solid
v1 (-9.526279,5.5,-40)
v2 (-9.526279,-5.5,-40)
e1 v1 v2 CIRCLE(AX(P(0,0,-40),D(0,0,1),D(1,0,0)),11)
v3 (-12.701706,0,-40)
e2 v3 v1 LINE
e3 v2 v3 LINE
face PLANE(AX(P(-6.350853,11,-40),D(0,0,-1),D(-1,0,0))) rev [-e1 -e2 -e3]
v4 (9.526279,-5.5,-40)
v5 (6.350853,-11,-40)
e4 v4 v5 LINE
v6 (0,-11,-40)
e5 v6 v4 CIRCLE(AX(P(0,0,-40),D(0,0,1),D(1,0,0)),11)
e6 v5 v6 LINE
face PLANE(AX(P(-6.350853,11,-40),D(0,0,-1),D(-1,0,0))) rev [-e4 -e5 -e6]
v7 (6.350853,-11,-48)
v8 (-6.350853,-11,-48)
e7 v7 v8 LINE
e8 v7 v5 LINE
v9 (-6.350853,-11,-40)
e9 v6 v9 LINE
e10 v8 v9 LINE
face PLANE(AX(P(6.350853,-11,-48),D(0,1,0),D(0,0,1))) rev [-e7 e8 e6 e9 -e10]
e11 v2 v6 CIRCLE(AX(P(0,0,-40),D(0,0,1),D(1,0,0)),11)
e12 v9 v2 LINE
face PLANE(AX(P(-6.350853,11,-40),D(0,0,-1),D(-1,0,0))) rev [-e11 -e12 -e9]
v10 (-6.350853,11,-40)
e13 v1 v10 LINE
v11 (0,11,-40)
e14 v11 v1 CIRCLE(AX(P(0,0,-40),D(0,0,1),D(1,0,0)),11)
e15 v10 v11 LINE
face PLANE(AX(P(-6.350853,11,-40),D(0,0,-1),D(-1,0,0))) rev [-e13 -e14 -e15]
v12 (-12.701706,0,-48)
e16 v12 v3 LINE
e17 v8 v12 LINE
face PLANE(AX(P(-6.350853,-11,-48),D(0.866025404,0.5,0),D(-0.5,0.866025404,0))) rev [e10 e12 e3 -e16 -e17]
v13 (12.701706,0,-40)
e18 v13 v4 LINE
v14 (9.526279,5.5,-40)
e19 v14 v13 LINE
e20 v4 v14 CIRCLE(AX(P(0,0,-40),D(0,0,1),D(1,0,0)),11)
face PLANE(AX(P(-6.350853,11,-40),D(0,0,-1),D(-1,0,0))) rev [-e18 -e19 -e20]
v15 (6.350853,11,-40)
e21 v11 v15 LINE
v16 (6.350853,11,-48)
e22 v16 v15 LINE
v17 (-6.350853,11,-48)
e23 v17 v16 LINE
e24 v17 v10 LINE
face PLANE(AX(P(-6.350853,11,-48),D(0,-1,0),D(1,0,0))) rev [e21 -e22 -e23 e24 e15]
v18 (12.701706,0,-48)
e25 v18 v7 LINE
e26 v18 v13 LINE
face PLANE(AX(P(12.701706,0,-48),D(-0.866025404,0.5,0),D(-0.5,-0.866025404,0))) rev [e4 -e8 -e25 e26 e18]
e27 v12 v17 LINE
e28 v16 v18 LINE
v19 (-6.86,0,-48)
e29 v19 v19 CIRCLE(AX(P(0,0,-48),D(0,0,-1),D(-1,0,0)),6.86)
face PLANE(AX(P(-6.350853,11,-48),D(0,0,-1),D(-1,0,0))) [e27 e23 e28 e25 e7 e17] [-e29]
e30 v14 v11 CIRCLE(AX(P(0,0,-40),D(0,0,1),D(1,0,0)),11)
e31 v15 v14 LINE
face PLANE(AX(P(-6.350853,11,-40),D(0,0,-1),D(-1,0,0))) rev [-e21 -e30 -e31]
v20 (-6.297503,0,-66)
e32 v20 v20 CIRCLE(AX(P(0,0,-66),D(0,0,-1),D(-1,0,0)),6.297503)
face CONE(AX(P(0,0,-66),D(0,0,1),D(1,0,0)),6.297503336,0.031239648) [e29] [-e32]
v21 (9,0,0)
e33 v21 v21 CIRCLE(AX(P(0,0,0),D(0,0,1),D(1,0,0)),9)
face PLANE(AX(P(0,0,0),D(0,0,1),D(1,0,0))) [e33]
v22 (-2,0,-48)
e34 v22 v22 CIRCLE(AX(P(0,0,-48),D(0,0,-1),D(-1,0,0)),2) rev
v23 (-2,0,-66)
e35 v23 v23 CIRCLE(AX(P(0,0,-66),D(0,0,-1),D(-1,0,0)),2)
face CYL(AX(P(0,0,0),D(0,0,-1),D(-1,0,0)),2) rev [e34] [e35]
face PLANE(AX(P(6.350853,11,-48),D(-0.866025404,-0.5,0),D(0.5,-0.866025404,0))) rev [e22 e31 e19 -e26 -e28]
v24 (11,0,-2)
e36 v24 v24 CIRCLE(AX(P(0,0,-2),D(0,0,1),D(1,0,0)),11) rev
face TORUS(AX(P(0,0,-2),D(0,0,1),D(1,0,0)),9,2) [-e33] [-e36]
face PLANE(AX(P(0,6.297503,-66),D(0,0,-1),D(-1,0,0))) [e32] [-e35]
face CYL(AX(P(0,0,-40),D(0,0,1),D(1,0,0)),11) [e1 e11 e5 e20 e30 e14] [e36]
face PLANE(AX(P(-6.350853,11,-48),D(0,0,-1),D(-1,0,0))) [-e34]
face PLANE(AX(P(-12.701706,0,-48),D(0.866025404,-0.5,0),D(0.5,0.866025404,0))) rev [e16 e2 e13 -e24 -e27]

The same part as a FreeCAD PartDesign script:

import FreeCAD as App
import Part
import Sketcher

V = App.Vector
Q = App.Units.Quantity


def edges_at(feature, points):
    """Names of the edges that pass closest to the given points."""
    edges = feature.Shape.Edges
    near = lambda p: min(range(len(edges)), key=lambda i: edges[i].distToShape(Part.Vertex(*p))[0])
    return sorted({f"Edge{near(p) + 1}" for p in points})


def add_polygon(sketch, points):
    """Adds a closed chain of lines whose ends are joined by coincident constraints."""
    first, n = sketch.GeometryCount, len(points)
    for a, b in zip(points, points[1:] + points[:1]):
        sketch.addGeometry(Part.LineSegment(App.Vector(*a, 0), App.Vector(*b, 0)), False)
    for i in range(n):
        sketch.addConstraint(Sketcher.Constraint("Coincident", first + i, 2, first + (i + 1) % n, 1))

doc = App.newDocument("Part")
body = doc.addObject("PartDesign::Body", "Body")

sketch1 = body.newObject("Sketcher::SketchObject", "Sketch")
sketch1.AttachmentSupport = (doc.getObject("XY_Plane"), [""])
sketch1.MapMode = "FlatFace"
sketch1.addGeometry(Part.Circle(V(0, 0, 0), V(0, 0, 1), 11), False)
sketch1.addConstraint([
    Sketcher.Constraint("Coincident", 0, 3, -1, 1),
    Sketcher.Constraint("Diameter", 0, Q("22 mm")),
])
pad1 = body.newObject("PartDesign::Pad", "Pad")
pad1.Profile = sketch1
pad1.Length = 40
pad1.Reversed = True

sketch2 = body.newObject("Sketcher::SketchObject", "Sketch001")
sketch2.AttachmentSupport = (doc.getObject("XY_Plane"), [""])
sketch2.MapMode = "FlatFace"
sketch2.AttachmentOffset = App.Placement(V(0, 0, -40), App.Rotation())
add_polygon(sketch2, [(-6, 11), (6, 11), (13, 0), (6, -11), (-6, -11), (-13, 0)])
sketch2.addConstraint([
    Sketcher.Constraint("Horizontal", 0),
    Sketcher.Constraint("Horizontal", 3),
    Sketcher.Constraint("Symmetric", 0, 2, 3, 2, -1, 1),
    Sketcher.Constraint("Symmetric", 1, 2, 4, 2, -1, 1),
    Sketcher.Constraint("PointOnObject", 1, 2, -1),
    Sketcher.Constraint("Parallel", 2, 5),
    Sketcher.Constraint("Vertical", 0, 2, 2, 2),
    Sketcher.Constraint("Angle", 1, Q("-60 deg")),
    Sketcher.Constraint("DistanceY", -1, 1, 0, 2, Q("11 mm")),
    Sketcher.Constraint("DistanceX", 0, 1, 0, 2, Q("12.701706 mm")),
])
pad2 = body.newObject("PartDesign::Pad", "Pad001")
pad2.Profile = sketch2
pad2.Length = 8
pad2.Reversed = True

sketch3 = body.newObject("Sketcher::SketchObject", "Sketch002")
sketch3.AttachmentSupport = (doc.getObject("YZ_Plane"), [""])
sketch3.MapMode = "FlatFace"
add_polygon(sketch3, [(6.3, -66), (6.9, -48), (2, -48), (2, -66)])
sketch3.addConstraint([
    Sketcher.Constraint("Horizontal", 1),
    Sketcher.Constraint("Vertical", 2),
    Sketcher.Constraint("Horizontal", 3),
    Sketcher.Constraint("DistanceY", 2, 2, 2, 1, Q("18 mm")),
    Sketcher.Constraint("DistanceY", 0, 2, -1, 1, Q("48 mm")),
    Sketcher.Constraint("DistanceX", -1, 1, 1, 2, Q("2 mm")),
    Sketcher.Constraint("DistanceX", 1, 2, 1, 1, Q("4.86 mm")),
    Sketcher.Constraint("DistanceX", 3, 1, 3, 2, Q("4.297503 mm")),
])
revolution = body.newObject("PartDesign::Revolution", "Revolution")
revolution.Profile = sketch3
revolution.ReferenceAxis = (sketch3, ["V_Axis"])
revolution.Angle = 360
doc.recompute()

fillet = body.newObject("PartDesign::Fillet", "Fillet")
fillet.Base = (revolution, edges_at(revolution, [(-11, 0, 0)]))
fillet.Radius = 2

doc.recompute()
